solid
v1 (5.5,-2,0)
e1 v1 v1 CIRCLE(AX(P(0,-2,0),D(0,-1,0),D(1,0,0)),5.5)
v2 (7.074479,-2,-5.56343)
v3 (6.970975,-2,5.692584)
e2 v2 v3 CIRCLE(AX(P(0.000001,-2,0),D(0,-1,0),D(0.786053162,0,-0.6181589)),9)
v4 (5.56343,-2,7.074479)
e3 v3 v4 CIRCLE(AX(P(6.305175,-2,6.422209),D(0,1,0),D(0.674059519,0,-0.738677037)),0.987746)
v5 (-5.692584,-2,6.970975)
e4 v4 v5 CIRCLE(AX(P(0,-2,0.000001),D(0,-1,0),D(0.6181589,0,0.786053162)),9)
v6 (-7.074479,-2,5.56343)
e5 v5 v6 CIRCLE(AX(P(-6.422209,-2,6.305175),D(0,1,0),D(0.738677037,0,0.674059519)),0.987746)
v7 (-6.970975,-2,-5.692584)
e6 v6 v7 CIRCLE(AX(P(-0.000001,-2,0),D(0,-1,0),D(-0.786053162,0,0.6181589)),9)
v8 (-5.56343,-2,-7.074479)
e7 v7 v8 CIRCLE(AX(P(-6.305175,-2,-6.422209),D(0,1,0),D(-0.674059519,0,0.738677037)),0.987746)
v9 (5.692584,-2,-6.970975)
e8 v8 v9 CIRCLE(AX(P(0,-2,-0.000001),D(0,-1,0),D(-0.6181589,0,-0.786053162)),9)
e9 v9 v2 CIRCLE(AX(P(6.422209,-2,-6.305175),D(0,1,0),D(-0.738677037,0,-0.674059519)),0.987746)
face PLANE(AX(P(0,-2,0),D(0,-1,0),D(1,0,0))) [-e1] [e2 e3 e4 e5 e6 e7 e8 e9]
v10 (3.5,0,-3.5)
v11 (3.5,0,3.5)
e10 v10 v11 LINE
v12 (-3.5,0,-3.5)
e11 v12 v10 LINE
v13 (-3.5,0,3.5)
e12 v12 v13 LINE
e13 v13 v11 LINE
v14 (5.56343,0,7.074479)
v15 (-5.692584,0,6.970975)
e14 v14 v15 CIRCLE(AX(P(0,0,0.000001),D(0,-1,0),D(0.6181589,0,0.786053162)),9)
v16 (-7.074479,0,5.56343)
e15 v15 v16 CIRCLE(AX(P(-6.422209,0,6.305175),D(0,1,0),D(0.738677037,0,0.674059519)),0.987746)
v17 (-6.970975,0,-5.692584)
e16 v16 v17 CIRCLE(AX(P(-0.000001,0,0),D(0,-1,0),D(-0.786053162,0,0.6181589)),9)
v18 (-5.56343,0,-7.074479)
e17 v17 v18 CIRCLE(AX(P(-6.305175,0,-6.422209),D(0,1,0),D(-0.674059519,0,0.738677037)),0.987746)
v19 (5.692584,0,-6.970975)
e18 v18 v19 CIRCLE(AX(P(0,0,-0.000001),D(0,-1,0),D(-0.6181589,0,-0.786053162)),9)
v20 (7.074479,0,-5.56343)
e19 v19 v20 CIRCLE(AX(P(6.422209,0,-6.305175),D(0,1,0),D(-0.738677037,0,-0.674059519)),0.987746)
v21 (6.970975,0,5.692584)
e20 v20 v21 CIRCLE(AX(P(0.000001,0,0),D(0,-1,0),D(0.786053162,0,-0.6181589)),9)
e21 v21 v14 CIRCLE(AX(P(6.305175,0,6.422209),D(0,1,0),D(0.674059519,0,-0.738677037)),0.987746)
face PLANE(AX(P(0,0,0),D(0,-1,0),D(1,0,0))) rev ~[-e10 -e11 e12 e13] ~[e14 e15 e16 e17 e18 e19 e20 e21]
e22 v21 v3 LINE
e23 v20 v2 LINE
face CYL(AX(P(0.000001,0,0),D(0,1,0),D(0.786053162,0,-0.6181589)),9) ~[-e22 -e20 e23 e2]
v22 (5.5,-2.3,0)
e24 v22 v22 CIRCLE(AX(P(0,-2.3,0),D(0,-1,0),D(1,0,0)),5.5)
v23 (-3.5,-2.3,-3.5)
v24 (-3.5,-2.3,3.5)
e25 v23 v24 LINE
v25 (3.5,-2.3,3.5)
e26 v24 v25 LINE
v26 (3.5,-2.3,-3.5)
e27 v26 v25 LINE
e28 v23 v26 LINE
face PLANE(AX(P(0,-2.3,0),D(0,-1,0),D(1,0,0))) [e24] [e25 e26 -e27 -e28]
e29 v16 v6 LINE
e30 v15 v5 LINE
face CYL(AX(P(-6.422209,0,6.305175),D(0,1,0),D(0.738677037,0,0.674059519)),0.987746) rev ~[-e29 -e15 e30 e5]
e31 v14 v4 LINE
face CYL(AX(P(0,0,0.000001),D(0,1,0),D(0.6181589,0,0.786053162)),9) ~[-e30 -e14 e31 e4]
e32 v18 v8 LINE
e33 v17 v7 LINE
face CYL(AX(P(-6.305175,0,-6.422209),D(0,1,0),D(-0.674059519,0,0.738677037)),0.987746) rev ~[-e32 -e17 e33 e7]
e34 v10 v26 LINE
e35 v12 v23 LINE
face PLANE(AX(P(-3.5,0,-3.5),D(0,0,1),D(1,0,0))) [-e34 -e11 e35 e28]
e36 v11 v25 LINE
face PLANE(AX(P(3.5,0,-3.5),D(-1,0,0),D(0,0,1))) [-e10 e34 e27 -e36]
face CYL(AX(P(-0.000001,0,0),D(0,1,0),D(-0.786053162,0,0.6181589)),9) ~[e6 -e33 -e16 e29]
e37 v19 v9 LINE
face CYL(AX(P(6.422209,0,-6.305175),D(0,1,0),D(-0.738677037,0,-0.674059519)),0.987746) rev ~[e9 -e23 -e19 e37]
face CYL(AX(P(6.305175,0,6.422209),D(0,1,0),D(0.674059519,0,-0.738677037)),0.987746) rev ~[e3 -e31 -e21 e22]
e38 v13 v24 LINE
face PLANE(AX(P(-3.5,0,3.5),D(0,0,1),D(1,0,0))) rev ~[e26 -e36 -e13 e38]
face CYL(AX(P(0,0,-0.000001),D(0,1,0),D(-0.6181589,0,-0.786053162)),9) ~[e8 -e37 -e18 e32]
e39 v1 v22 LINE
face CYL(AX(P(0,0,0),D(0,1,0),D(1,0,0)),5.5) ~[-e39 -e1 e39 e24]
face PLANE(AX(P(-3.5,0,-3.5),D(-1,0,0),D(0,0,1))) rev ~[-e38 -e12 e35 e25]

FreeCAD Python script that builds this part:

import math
import FreeCAD as App
import Part
import Sketcher
Q = App.Units.Quantity


def add_polygon(sketch, points):
    """Adds a closed chain of lines whose ends are joined by coincident constraints."""
    first, n = sketch.GeometryCount, len(points)
    for a, b in zip(points, points[1:] + points[:1]):
        sketch.addGeometry(Part.LineSegment(App.Vector(*a, 0), App.Vector(*b, 0)), False)
    for i in range(n):
        sketch.addConstraint(Sketcher.Constraint("Coincident", first + i, 2, first + (i + 1) % n, 1))

doc = App.newDocument("Part")
params = doc.addObject("Spreadsheet::Sheet", "Params")
for row, (alias, value) in enumerate([
    ("sketch1_diameter", "11 mm"),
    ("sketch1_radius", "9 mm"),
    ("pad1_length", "2 mm"),
    ("sketch2_diameter", "11 mm"),
    ("sketch2_width", "7 mm"),
    ("pad2_length", "2.3 mm"),
], start=1):
    params.set(f"A{row}", alias)
    params.set(f"B{row}", "=" + value)
    params.setAlias(f"B{row}", alias)

body = doc.addObject("PartDesign::Body", "Body")

# Sketch on XZ plane
sketch1 = doc.addObject("Sketcher::SketchObject", "Sketch")
body.addObject(sketch1)
sketch1.AttachmentSupport = (doc.XZ_Plane, [""])
sketch1.MapMode = "FlatFace"
sketch1.addGeometry([
    Part.ArcOfCircle(Part.Circle(App.Vector(-6.4, 6.3, 0), App.Vector(0, 0, 1), 1), math.radians(-131), math.radians(42)),  # 0
    Part.ArcOfCircle(Part.Circle(App.Vector(0, 0, 0), App.Vector(0, 0, 1), 9), math.radians(142), math.radians(219)),  # 1
    Part.ArcOfCircle(Part.Circle(App.Vector(-6.3, -6.4, 0), App.Vector(0, 0, 1), 1), math.radians(-41), math.radians(132)),  # 2
    Part.ArcOfCircle(Part.Circle(App.Vector(0, 0, 0), App.Vector(0, 0, 1), 9), math.radians(-128), math.radians(-51)),  # 3
    Part.ArcOfCircle(Part.Circle(App.Vector(6.4, -6.3, 0), App.Vector(0, 0, 1), 1), math.radians(49), math.radians(222)),  # 4
    Part.ArcOfCircle(Part.Circle(App.Vector(0, 0, 0), App.Vector(0, 0, 1), 9), math.radians(-38), math.radians(39)),  # 5
    Part.ArcOfCircle(Part.Circle(App.Vector(6.3, 6.4, 0), App.Vector(0, 0, 1), 1), math.radians(139), math.radians(312)),  # 6
    Part.ArcOfCircle(Part.Circle(App.Vector(0, 0, 0), App.Vector(0, 0, 1), 9), math.radians(52), math.radians(129)),  # 7
    Part.Circle(App.Vector(0, 0, 0), App.Vector(0, 0, 1), 5.5),  # 8
], False)
sketch1.addConstraint([
    Sketcher.Constraint("Coincident", 0, 1, 1, 1),
    Sketcher.Constraint("Coincident", 1, 2, 2, 2),
    Sketcher.Constraint("Coincident", 2, 1, 3, 1),
    Sketcher.Constraint("Coincident", 3, 2, 4, 2),
    Sketcher.Constraint("Coincident", 4, 1, 5, 1),
    Sketcher.Constraint("Coincident", 5, 2, 6, 2),
    Sketcher.Constraint("Coincident", 6, 1, 7, 1),
    Sketcher.Constraint("Coincident", 7, 2, 0, 2),
    Sketcher.Constraint("Coincident", 1, 3, -1, 1),
    Sketcher.Constraint("Coincident", 3, 3, -1, 1),
    Sketcher.Constraint("Coincident", 5, 3, -1, 1),
    Sketcher.Constraint("Coincident", 7, 3, -1, 1),
    Sketcher.Constraint("Coincident", 8, 3, -1, 1),
    Sketcher.Constraint("Equal", 0, 2),
    Sketcher.Constraint("Equal", 1, 3),
    Sketcher.Constraint("Equal", 2, 4),
    Sketcher.Constraint("Equal", 3, 5),
    Sketcher.Constraint("Equal", 4, 6),
    Sketcher.Constraint("Equal", 5, 7),
    Sketcher.Constraint("Symmetric", 0, 3, 4, 3, -1, 1),
    Sketcher.Constraint("Symmetric", 2, 3, 6, 3, -1, 1),
    Sketcher.Constraint("Diameter", 8, Q("11 mm")),
    Sketcher.Constraint("Radius", 1, Q("9 mm")),
    Sketcher.Constraint("Radius", 0, Q("0.987746 mm")),
    Sketcher.Constraint("DistanceX", 1, 2, 2, 3, Q("0.6658 mm")),
    Sketcher.Constraint("DistanceY", 3, 2, 4, 3, Q("0.6658 mm")),
    Sketcher.Constraint("DistanceX", 0, 3, -1, 1, Q("6.422209 mm")),
    Sketcher.Constraint("DistanceY", 2, 3, -1, 1, Q("6.422209 mm")),
])
sketch1.setExpression("Constraints[21]", "Params.sketch1_diameter")
sketch1.setExpression("Constraints[22]", "Params.sketch1_radius")
pad1 = doc.addObject("PartDesign::Pad", "Pad")
body.addObject(pad1)
pad1.Profile = sketch1
pad1.setExpression("Length", "Params.pad1_length")

# Sketch on XZ plane
sketch2 = doc.addObject("Sketcher::SketchObject", "Sketch001")
body.addObject(sketch2)
sketch2.AttachmentSupport = (doc.XZ_Plane, [""])
sketch2.MapMode = "FlatFace"
sketch2.addGeometry(Part.Circle(App.Vector(0, 0, 0), App.Vector(0, 0, 1), 6), False)  # 0
add_polygon(sketch2, [(4, -4), (-4, -4), (-4, 4), (4, 4)])  # lines 1-4
sketch2.addConstraint([
    Sketcher.Constraint("Horizontal", 1),
    Sketcher.Constraint("Vertical", 2),
    Sketcher.Constraint("Horizontal", 3),
    Sketcher.Constraint("Vertical", 4),
    Sketcher.Constraint("Coincident", 0, 3, -1, 1),
    Sketcher.Constraint("Symmetric", 1, 2, 3, 2, -1, 1),
    Sketcher.Constraint("Equal", 3, 2),
    Sketcher.Constraint("Diameter", 0, Q("11 mm")),
    Sketcher.Constraint("DistanceX", 1, 2, 1, 1, Q("7 mm")),
])
sketch2.setExpression("Constraints[11]", "Params.sketch2_diameter")
sketch2.setExpression("Constraints[12]", "Params.sketch2_width")
pad2 = doc.addObject("PartDesign::Pad", "Pad001")
body.addObject(pad2)
pad2.Profile = sketch2
pad2.setExpression("Length", "Params.pad2_length")

doc.recompute()
